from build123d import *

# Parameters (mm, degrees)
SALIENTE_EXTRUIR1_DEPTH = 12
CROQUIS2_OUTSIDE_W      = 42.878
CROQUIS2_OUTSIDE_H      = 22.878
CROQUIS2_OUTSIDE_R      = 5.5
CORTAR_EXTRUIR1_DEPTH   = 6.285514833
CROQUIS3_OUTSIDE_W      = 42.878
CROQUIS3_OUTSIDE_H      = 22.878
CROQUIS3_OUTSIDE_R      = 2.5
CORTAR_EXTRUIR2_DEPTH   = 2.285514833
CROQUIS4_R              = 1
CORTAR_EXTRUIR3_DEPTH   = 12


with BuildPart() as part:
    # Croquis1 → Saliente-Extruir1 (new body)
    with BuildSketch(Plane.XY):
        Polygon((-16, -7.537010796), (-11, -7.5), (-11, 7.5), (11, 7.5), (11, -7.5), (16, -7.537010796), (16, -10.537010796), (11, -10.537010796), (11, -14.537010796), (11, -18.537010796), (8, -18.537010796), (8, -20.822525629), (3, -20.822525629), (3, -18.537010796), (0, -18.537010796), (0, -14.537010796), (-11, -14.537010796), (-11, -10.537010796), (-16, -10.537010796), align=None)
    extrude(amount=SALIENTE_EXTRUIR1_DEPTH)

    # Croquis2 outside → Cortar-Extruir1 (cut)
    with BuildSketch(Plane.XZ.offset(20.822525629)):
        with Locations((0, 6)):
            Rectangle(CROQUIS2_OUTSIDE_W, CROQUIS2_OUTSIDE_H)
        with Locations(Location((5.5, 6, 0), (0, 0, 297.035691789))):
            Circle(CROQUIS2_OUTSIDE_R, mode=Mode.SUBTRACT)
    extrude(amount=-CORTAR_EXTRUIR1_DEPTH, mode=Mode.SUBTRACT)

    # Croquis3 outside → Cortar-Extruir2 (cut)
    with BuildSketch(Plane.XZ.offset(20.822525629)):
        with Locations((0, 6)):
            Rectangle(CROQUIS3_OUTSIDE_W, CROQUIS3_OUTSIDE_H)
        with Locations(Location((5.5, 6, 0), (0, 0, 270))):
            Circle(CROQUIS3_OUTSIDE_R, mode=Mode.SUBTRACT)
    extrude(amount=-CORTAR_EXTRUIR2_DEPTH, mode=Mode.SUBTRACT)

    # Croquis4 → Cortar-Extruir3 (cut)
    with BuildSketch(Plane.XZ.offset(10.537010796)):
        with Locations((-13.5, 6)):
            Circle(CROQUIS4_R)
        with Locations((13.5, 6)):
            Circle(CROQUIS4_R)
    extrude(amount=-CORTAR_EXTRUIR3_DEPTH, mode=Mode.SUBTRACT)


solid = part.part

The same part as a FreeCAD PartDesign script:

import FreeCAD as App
import Part
import Sketcher

V = App.Vector

doc = App.newDocument("Part")
body = doc.addObject("PartDesign::Body", "Body")

# Sketch on XY plane
sketch1 = body.newObject("Sketcher::SketchObject", "Sketch")
sketch1.AttachmentSupport = (doc.getObject("XY_Plane"), [""])
sketch1.MapMode = "FlatFace"
sketch1.addGeometry([
    Part.LineSegment(V(-11, -7.5, 0), V(-16, -7.5, 0)),  # 0
    Part.LineSegment(V(-16, -7.5, 0), V(-16, -10.5, 0)),  # 1
    Part.LineSegment(V(-16, -10.5, 0), V(-11, -10.5, 0)),  # 2
    Part.LineSegment(V(-11, -10.5, 0), V(-11, -14.5, 0)),  # 3
    Part.LineSegment(V(-11, -14.5, 0), V(0, -14.5, 0)),  # 4
    Part.LineSegment(V(0, -14.5, 0), V(0, -18.5, 0)),  # 5
    Part.LineSegment(V(0, -18.5, 0), V(3, -18.5, 0)),  # 6
    Part.LineSegment(V(3, -18.5, 0), V(3, -20.8, 0)),  # 7
    Part.LineSegment(V(3, -20.8, 0), V(8, -20.8, 0)),  # 8
    Part.LineSegment(V(8, -20.8, 0), V(8, -18.5, 0)),  # 9
    Part.LineSegment(V(8, -18.5, 0), V(11, -18.5, 0)),  # 10
    Part.LineSegment(V(11, -18.5, 0), V(11, -10.5, 0)),  # 11
    Part.LineSegment(V(11, -10.5, 0), V(16, -10.5, 0)),  # 12
    Part.LineSegment(V(16, -10.5, 0), V(16, -7.5, 0)),  # 13
    Part.LineSegment(V(16, -7.5, 0), V(11, -7.5, 0)),  # 14
    Part.LineSegment(V(11, -7.5, 0), V(11, 7.5, 0)),  # 15
    Part.LineSegment(V(11, 7.5, 0), V(-11, 7.5, 0)),  # 16
    Part.LineSegment(V(-11, 7.5, 0), V(-11, -7.5, 0)),  # 17
], False)
sketch1.addConstraint([
    Sketcher.Constraint("Coincident", 0, 2, 1, 1),
    Sketcher.Constraint("Coincident", 1, 2, 2, 1),
    Sketcher.Constraint("Coincident", 2, 2, 3, 1),
    Sketcher.Constraint("Coincident", 3, 2, 4, 1),
    Sketcher.Constraint("Coincident", 4, 2, 5, 1),
    Sketcher.Constraint("Coincident", 5, 2, 6, 1),
    Sketcher.Constraint("Coincident", 6, 2, 7, 1),
    Sketcher.Constraint("Coincident", 7, 2, 8, 1),
    Sketcher.Constraint("Coincident", 8, 2, 9, 1),
    Sketcher.Constraint("Coincident", 9, 2, 10, 1),
    Sketcher.Constraint("Coincident", 10, 2, 11, 1),
    Sketcher.Constraint("Coincident", 11, 2, 12, 1),
    Sketcher.Constraint("Coincident", 12, 2, 13, 1),
    Sketcher.Constraint("Coincident", 13, 2, 14, 1),
    Sketcher.Constraint("Coincident", 14, 2, 15, 1),
    Sketcher.Constraint("Coincident", 15, 2, 16, 1),
    Sketcher.Constraint("Coincident", 16, 2, 17, 1),
    Sketcher.Constraint("Coincident", 17, 2, 0, 1),
    Sketcher.Constraint("Vertical", 1),
    Sketcher.Constraint("Horizontal", 2),
    Sketcher.Constraint("Vertical", 3),
    Sketcher.Constraint("Horizontal", 4),
    Sketcher.Constraint("Vertical", 5),
    Sketcher.Constraint("Horizontal", 6),
    Sketcher.Constraint("Vertical", 7),
    Sketcher.Constraint("Horizontal", 8),
    Sketcher.Constraint("Vertical", 9),
    Sketcher.Constraint("Horizontal", 10),
    Sketcher.Constraint("Vertical", 11),
    Sketcher.Constraint("Horizontal", 12),
    Sketcher.Constraint("Vertical", 13),
    Sketcher.Constraint("Vertical", 15),
    Sketcher.Constraint("Horizontal", 16),
    Sketcher.Constraint("Vertical", 17),
    Sketcher.Constraint("Symmetric", 14, 2, 16, 2, -1, 1),
    Sketcher.Constraint("Symmetric", 2, 2, 11, 2, -2),
    Sketcher.Constraint("Symmetric", 0, 2, 13, 2, -2),
    Sketcher.Constraint("PointOnObject", 4, 2, -2),
    Sketcher.Constraint("Horizontal", 6, 2, 9, 2),
    Sketcher.Constraint("Horizontal", 14, 2, 17, 2),
    Sketcher.Constraint("Vertical", 11, 2, 14, 2),
    Sketcher.Constraint("Equal", 2, 8),
    Sketcher.Constraint("Equal", 6, 10),
    Sketcher.Constraint("Equal", 10, 1),
    Sketcher.Constraint("Equal", 3, 5),
    Sketcher.Constraint("DistanceX", 2, 1, 2, 2, 5.0),
    Sketcher.Constraint("DistanceX", 4, 1, 4, 2, 11.0),
    Sketcher.Constraint("DistanceY", 3, 2, 3, 1, 4.0),
    Sketcher.Constraint("DistanceY", 15, 1, 15, 2, 15.0),
    Sketcher.Constraint("DistanceY", 7, 2, 7, 1, 2.285515),
    Sketcher.Constraint("DistanceY", 0, 2, -1, 1, 7.537011),
])
pad1 = body.newObject("PartDesign::Pad", "Pad")
pad1.Profile = sketch1
pad1.Length = 12

# Sketch on XZ plane
sketch2 = body.newObject("Sketcher::SketchObject", "Sketch001")
sketch2.AttachmentSupport = (doc.getObject("XZ_Plane"), [""])
sketch2.MapMode = "FlatFace"
sketch2.AttachmentOffset = App.Placement(V(0, 0, 20.822526), App.Rotation())
sketch2.addGeometry([
    Part.LineSegment(V(-21, 17, 0), V(-21, -5, 0)),  # 0
    Part.LineSegment(V(-21, -5, 0), V(21, -5, 0)),  # 1
    Part.LineSegment(V(21, -5, 0), V(21, 17, 0)),  # 2
    Part.LineSegment(V(21, 17, 0), V(-21, 17, 0)),  # 3
    Part.Circle(V(6, 6, 0), V(0, 0, 1), 6),  # 4
], False)
sketch2.addConstraint([
    Sketcher.Constraint("Coincident", 0, 2, 1, 1),
    Sketcher.Constraint("Coincident", 1, 2, 2, 1),
    Sketcher.Constraint("Coincident", 2, 2, 3, 1),
    Sketcher.Constraint("Coincident", 3, 2, 0, 1),
    Sketcher.Constraint("Vertical", 0),
    Sketcher.Constraint("Horizontal", 1),
    Sketcher.Constraint("Vertical", 2),
    Sketcher.Constraint("Horizontal", 3),
    Sketcher.Constraint("Diameter", 4, 11.0),
    Sketcher.Constraint("DistanceY", -1, 1, 4, 3, 6.0),
    Sketcher.Constraint("DistanceX", -1, 1, 4, 3, 5.5),
    Sketcher.Constraint("DistanceX", 1, 1, 1, 2, 42.878),
    Sketcher.Constraint("DistanceY", 0, 2, 0, 1, 22.878),
    Sketcher.Constraint("DistanceX", 0, 2, -1, 1, 21.439),
    Sketcher.Constraint("DistanceY", 0, 2, -1, 1, 5.439),
])
pocket1 = body.newObject("PartDesign::Pocket", "Pocket")
pocket1.Profile = sketch2
pocket1.Length = 6.285515

# Sketch on XZ plane
sketch3 = body.newObject("Sketcher::SketchObject", "Sketch002")
sketch3.AttachmentSupport = (doc.getObject("XZ_Plane"), [""])
sketch3.MapMode = "FlatFace"
sketch3.AttachmentOffset = App.Placement(V(0, 0, 20.822526), App.Rotation())
sketch3.addGeometry([
    Part.LineSegment(V(-21.4, 17.4, 0), V(-21.4, -5.4, 0)),  # 0
    Part.LineSegment(V(-21.4, -5.4, 0), V(21.4, -5.4, 0)),  # 1
    Part.LineSegment(V(21.4, -5.4, 0), V(21.4, 17.4, 0)),  # 2
    Part.LineSegment(V(21.4, 17.4, 0), V(-21.4, 17.4, 0)),  # 3
    Part.Circle(V(5.5, 6, 0), V(0, 0, 1), 2.5),  # 4
], False)
sketch3.addConstraint([
    Sketcher.Constraint("Coincident", 0, 2, 1, 1),
    Sketcher.Constraint("Coincident", 1, 2, 2, 1),
    Sketcher.Constraint("Coincident", 2, 2, 3, 1),
    Sketcher.Constraint("Coincident", 3, 2, 0, 1),
    Sketcher.Constraint("Vertical", 0),
    Sketcher.Constraint("Horizontal", 1),
    Sketcher.Constraint("Vertical", 2),
    Sketcher.Constraint("Horizontal", 3),
    Sketcher.Constraint("Diameter", 4, 5.0),
    Sketcher.Constraint("DistanceY", -1, 1, 4, 3, 6.0),
    Sketcher.Constraint("DistanceX", -1, 1, 4, 3, 5.5),
    Sketcher.Constraint("DistanceX", 1, 1, 1, 2, 42.878),
    Sketcher.Constraint("DistanceY", 0, 2, 0, 1, 22.878),
    Sketcher.Constraint("DistanceX", 0, 2, -1, 1, 21.439),
    Sketcher.Constraint("DistanceY", 0, 2, -1, 1, 5.439),
])
pocket2 = body.newObject("PartDesign::Pocket", "Pocket001")
pocket2.Profile = sketch3
pocket2.Length = 2.285515

# Sketch on XZ plane
sketch4 = body.newObject("Sketcher::SketchObject", "Sketch003")
sketch4.AttachmentSupport = (doc.getObject("XZ_Plane"), [""])
sketch4.MapMode = "FlatFace"
sketch4.AttachmentOffset = App.Placement(V(0, 0, 10.537011), App.Rotation())
sketch4.addGeometry([
    Part.Circle(V(-13.5, 6, 0), V(0, 0, 1), 1),
    Part.Circle(V(13.5, 6, 0), V(0, 0, 1), 1),
], False)
sketch4.addConstraint([
    Sketcher.Constraint("Equal", 0, 1),
    Sketcher.Constraint("Symmetric", 0, 3, 1, 3, -2),
    Sketcher.Constraint("Diameter", 0, 2.0),
    Sketcher.Constraint("DistanceY", -1, 1, 0, 3, 6.0),
    Sketcher.Constraint("DistanceX", 0, 3, 1, 3, 27.0),
])
pocket3 = body.newObject("PartDesign::Pocket", "Pocket002")
pocket3.Profile = sketch4
pocket3.Length = 12

doc.recompute()
